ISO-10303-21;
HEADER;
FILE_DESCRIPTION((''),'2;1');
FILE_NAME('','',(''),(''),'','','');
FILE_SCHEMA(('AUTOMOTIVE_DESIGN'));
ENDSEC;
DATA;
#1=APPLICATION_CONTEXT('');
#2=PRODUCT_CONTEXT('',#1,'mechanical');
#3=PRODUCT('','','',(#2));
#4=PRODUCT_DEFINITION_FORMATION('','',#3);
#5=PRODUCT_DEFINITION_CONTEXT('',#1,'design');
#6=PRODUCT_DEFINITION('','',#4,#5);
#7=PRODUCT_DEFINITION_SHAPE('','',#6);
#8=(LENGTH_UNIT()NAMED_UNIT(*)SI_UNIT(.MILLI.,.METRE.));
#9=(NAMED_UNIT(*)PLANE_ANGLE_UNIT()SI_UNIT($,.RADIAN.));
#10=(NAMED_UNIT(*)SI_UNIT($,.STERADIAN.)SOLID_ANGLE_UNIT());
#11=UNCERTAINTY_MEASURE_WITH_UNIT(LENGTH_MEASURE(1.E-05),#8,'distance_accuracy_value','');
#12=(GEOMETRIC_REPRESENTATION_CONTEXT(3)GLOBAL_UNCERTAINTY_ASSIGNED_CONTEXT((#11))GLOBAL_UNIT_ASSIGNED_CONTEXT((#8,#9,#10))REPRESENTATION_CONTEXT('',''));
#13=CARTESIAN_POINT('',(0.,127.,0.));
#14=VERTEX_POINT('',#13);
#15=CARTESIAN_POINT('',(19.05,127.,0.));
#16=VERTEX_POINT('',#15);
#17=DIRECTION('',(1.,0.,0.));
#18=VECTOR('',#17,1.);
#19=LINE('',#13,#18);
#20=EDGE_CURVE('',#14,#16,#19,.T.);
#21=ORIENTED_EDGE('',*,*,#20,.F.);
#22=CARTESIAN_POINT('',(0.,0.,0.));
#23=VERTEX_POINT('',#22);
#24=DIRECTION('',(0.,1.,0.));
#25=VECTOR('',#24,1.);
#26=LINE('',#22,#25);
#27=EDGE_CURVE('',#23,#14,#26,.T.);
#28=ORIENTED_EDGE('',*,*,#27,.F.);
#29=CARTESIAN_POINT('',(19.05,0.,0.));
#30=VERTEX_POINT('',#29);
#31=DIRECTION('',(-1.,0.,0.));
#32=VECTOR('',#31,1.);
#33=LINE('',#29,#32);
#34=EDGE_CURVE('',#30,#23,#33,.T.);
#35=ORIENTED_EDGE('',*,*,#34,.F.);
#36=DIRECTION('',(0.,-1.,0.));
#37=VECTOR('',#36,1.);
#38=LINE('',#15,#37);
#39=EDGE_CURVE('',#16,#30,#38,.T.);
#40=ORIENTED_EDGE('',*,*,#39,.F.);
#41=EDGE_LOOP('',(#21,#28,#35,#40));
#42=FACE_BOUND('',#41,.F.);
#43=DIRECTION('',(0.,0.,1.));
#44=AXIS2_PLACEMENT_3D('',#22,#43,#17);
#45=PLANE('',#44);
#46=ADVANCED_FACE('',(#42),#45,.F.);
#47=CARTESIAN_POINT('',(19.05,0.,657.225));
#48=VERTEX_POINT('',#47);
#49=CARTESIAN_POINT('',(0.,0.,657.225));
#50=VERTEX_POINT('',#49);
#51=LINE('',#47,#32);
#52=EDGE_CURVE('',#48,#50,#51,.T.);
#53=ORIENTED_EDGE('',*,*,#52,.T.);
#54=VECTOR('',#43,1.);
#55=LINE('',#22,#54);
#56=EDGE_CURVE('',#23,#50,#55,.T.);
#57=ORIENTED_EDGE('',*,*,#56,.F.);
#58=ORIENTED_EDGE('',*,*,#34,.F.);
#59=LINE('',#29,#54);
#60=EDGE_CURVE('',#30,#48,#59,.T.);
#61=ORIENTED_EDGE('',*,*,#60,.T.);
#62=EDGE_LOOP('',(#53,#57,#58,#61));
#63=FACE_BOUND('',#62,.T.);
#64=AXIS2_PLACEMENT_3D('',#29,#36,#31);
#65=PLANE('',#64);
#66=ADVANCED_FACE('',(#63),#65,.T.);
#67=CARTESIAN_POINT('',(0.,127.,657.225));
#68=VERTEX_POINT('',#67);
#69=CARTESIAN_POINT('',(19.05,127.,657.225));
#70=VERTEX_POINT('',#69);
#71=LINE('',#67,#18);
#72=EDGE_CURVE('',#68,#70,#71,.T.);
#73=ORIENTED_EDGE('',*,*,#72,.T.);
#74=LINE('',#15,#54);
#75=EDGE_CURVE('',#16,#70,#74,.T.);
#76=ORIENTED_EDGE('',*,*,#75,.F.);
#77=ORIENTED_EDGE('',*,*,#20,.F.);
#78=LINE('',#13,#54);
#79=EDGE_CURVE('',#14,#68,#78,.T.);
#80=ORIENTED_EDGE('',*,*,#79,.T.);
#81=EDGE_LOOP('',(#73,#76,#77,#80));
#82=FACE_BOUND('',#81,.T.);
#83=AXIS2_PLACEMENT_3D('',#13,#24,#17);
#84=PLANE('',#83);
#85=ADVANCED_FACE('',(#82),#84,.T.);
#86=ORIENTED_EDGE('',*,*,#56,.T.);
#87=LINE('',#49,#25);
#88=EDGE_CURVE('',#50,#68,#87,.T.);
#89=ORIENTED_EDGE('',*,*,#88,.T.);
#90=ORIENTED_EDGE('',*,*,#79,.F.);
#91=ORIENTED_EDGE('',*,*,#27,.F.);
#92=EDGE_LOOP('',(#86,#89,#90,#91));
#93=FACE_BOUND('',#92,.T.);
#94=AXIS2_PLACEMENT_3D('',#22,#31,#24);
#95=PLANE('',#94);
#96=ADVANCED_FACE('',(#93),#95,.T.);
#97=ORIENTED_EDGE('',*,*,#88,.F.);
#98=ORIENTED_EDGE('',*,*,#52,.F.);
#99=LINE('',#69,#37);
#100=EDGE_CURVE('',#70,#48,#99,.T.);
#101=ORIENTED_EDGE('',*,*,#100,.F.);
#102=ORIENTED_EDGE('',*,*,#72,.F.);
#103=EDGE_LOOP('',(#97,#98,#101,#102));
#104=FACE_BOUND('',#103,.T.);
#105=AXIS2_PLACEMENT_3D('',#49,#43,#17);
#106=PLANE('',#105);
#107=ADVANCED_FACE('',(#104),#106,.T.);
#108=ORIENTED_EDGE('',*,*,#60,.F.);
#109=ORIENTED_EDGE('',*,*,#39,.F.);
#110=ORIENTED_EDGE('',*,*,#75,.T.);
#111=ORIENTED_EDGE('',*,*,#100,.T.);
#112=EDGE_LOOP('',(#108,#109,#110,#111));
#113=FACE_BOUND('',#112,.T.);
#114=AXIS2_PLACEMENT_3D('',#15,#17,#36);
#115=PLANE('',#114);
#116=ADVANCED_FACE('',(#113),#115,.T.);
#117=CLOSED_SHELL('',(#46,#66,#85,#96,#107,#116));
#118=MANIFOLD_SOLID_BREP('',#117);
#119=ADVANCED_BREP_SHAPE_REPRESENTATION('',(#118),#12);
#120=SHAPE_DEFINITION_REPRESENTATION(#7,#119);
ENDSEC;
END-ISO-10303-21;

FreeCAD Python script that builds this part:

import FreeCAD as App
import Part
import Sketcher
from FreeCAD import Vector
Q = App.Units.Quantity


def add_polygon(sketch, points):
    """Adds a closed chain of lines whose ends are joined by coincident constraints."""
    first, n = sketch.GeometryCount, len(points)
    for a, b in zip(points, points[1:] + points[:1]):
        sketch.addGeometry(Part.LineSegment(App.Vector(*a, 0), App.Vector(*b, 0)), False)
    for i in range(n):
        sketch.addConstraint(Sketcher.Constraint("Coincident", first + i, 2, first + (i + 1) % n, 1))

doc = App.newDocument("Part")
body = doc.addObject("PartDesign::Body", "Body")

sketch1 = body.newObject("Sketcher::SketchObject", "Sketch")
sketch1.AttachmentSupport = (doc.getObject("XY_Plane"), [""])
sketch1.MapMode = "FlatFace"
add_polygon(sketch1, [(0, 127), (0, 0), (19, 0), (19, 127)])
sketch1.addConstraint([
    Sketcher.Constraint("Vertical", 0),
    Sketcher.Constraint("Horizontal", 1),
    Sketcher.Constraint("Vertical", 2),
    Sketcher.Constraint("Horizontal", 3),
    Sketcher.Constraint("Coincident", 0, 2, -1, 1),
    Sketcher.Constraint("DistanceY", 0, 2, 0, 1, Q("5 in")),
    Sketcher.Constraint("DistanceX", 1, 1, 1, 2, Q("0.75 in")),
])
pad1 = body.newObject("PartDesign::Pad", "Pad")
pad1.Profile = sketch1
pad1.Length = Q("25.875 in")

doc.recompute()
